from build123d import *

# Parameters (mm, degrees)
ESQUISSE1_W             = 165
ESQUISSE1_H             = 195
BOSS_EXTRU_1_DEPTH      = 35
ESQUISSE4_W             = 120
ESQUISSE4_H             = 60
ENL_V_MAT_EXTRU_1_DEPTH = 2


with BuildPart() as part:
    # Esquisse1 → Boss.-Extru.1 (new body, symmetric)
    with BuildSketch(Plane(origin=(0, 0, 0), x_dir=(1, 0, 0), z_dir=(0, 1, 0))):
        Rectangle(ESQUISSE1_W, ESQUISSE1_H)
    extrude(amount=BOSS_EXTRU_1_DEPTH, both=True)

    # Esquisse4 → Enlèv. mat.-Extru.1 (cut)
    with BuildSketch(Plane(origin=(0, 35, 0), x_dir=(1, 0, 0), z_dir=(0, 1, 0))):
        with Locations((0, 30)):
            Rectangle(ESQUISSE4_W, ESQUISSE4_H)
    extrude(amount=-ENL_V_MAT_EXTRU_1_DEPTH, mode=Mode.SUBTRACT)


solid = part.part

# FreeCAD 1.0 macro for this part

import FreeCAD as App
import Part
import Sketcher
from FreeCAD import Vector
Q = App.Units.Quantity

doc = App.newDocument("Part")
body = doc.addObject("PartDesign::Body", "Body")

sketch1 = doc.addObject("Sketcher::SketchObject", "Sketch")
body.addObject(sketch1)
sketch1.AttachmentSupport = (doc.XZ_Plane, [""])
sketch1.MapMode = "FlatFace"
sketch1.addGeometry([
    Part.LineSegment(Vector(-82.5, -97.5, 0), Vector(-82.5, 97.5, 0)),
    Part.LineSegment(Vector(-82.5, 97.5, 0), Vector(82.5, 97.5, 0)),
    Part.LineSegment(Vector(82.5, 97.5, 0), Vector(82.5, -97.5, 0)),
    Part.LineSegment(Vector(82.5, -97.5, 0), Vector(-82.5, -97.5, 0)),
], False)
sketch1.addConstraint([
    Sketcher.Constraint("Coincident", 0, 2, 1, 1),
    Sketcher.Constraint("Coincident", 1, 2, 2, 1),
    Sketcher.Constraint("Coincident", 2, 2, 3, 1),
    Sketcher.Constraint("Coincident", 3, 2, 0, 1),
    Sketcher.Constraint("Vertical", 0),
    Sketcher.Constraint("Horizontal", 1),
    Sketcher.Constraint("Vertical", 2),
    Sketcher.Constraint("Horizontal", 3),
    Sketcher.Constraint("Symmetric", 0, 2, 2, 2, -1, 1),
    Sketcher.Constraint("DistanceX", 1, 1, 1, 2, Q("165 mm")),
    Sketcher.Constraint("DistanceY", 0, 1, 0, 2, Q("195 mm")),
])
pad1 = doc.addObject("PartDesign::Pad", "Pad")
body.addObject(pad1)
pad1.Profile = sketch1
pad1.Length = 70
pad1.Midplane = True

sketch2 = doc.addObject("Sketcher::SketchObject", "Sketch001")
body.addObject(sketch2)
sketch2.AttachmentSupport = (doc.XZ_Plane, [""])
sketch2.MapMode = "FlatFace"
sketch2.AttachmentOffset = App.Placement(Vector(0, 0, -35), App.Rotation())
sketch2.addGeometry([
    Part.LineSegment(Vector(-60, -60, 0), Vector(-60, 0, 0)),
    Part.LineSegment(Vector(-60, 0, 0), Vector(60, 0, 0)),
    Part.LineSegment(Vector(60, 0, 0), Vector(60, -60, 0)),
    Part.LineSegment(Vector(60, -60, 0), Vector(-60, -60, 0)),
], False)
sketch2.addConstraint([
    Sketcher.Constraint("Coincident", 0, 2, 1, 1),
    Sketcher.Constraint("Coincident", 1, 2, 2, 1),
    Sketcher.Constraint("Coincident", 2, 2, 3, 1),
    Sketcher.Constraint("Coincident", 3, 2, 0, 1),
    Sketcher.Constraint("Vertical", 0),
    Sketcher.Constraint("Horizontal", 1),
    Sketcher.Constraint("Vertical", 2),
    Sketcher.Constraint("Horizontal", 3),
    Sketcher.Constraint("Symmetric", 0, 2, 1, 2, -1, 1),
    Sketcher.Constraint("DistanceX", 1, 1, 1, 2, Q("120 mm")),
    Sketcher.Constraint("DistanceY", 0, 1, 0, 2, Q("60 mm")),
])
pocket1 = doc.addObject("PartDesign::Pocket", "Pocket")
body.addObject(pocket1)
pocket1.Profile = sketch2
pocket1.Length = 2
pocket1.Reversed = True

doc.recompute()
